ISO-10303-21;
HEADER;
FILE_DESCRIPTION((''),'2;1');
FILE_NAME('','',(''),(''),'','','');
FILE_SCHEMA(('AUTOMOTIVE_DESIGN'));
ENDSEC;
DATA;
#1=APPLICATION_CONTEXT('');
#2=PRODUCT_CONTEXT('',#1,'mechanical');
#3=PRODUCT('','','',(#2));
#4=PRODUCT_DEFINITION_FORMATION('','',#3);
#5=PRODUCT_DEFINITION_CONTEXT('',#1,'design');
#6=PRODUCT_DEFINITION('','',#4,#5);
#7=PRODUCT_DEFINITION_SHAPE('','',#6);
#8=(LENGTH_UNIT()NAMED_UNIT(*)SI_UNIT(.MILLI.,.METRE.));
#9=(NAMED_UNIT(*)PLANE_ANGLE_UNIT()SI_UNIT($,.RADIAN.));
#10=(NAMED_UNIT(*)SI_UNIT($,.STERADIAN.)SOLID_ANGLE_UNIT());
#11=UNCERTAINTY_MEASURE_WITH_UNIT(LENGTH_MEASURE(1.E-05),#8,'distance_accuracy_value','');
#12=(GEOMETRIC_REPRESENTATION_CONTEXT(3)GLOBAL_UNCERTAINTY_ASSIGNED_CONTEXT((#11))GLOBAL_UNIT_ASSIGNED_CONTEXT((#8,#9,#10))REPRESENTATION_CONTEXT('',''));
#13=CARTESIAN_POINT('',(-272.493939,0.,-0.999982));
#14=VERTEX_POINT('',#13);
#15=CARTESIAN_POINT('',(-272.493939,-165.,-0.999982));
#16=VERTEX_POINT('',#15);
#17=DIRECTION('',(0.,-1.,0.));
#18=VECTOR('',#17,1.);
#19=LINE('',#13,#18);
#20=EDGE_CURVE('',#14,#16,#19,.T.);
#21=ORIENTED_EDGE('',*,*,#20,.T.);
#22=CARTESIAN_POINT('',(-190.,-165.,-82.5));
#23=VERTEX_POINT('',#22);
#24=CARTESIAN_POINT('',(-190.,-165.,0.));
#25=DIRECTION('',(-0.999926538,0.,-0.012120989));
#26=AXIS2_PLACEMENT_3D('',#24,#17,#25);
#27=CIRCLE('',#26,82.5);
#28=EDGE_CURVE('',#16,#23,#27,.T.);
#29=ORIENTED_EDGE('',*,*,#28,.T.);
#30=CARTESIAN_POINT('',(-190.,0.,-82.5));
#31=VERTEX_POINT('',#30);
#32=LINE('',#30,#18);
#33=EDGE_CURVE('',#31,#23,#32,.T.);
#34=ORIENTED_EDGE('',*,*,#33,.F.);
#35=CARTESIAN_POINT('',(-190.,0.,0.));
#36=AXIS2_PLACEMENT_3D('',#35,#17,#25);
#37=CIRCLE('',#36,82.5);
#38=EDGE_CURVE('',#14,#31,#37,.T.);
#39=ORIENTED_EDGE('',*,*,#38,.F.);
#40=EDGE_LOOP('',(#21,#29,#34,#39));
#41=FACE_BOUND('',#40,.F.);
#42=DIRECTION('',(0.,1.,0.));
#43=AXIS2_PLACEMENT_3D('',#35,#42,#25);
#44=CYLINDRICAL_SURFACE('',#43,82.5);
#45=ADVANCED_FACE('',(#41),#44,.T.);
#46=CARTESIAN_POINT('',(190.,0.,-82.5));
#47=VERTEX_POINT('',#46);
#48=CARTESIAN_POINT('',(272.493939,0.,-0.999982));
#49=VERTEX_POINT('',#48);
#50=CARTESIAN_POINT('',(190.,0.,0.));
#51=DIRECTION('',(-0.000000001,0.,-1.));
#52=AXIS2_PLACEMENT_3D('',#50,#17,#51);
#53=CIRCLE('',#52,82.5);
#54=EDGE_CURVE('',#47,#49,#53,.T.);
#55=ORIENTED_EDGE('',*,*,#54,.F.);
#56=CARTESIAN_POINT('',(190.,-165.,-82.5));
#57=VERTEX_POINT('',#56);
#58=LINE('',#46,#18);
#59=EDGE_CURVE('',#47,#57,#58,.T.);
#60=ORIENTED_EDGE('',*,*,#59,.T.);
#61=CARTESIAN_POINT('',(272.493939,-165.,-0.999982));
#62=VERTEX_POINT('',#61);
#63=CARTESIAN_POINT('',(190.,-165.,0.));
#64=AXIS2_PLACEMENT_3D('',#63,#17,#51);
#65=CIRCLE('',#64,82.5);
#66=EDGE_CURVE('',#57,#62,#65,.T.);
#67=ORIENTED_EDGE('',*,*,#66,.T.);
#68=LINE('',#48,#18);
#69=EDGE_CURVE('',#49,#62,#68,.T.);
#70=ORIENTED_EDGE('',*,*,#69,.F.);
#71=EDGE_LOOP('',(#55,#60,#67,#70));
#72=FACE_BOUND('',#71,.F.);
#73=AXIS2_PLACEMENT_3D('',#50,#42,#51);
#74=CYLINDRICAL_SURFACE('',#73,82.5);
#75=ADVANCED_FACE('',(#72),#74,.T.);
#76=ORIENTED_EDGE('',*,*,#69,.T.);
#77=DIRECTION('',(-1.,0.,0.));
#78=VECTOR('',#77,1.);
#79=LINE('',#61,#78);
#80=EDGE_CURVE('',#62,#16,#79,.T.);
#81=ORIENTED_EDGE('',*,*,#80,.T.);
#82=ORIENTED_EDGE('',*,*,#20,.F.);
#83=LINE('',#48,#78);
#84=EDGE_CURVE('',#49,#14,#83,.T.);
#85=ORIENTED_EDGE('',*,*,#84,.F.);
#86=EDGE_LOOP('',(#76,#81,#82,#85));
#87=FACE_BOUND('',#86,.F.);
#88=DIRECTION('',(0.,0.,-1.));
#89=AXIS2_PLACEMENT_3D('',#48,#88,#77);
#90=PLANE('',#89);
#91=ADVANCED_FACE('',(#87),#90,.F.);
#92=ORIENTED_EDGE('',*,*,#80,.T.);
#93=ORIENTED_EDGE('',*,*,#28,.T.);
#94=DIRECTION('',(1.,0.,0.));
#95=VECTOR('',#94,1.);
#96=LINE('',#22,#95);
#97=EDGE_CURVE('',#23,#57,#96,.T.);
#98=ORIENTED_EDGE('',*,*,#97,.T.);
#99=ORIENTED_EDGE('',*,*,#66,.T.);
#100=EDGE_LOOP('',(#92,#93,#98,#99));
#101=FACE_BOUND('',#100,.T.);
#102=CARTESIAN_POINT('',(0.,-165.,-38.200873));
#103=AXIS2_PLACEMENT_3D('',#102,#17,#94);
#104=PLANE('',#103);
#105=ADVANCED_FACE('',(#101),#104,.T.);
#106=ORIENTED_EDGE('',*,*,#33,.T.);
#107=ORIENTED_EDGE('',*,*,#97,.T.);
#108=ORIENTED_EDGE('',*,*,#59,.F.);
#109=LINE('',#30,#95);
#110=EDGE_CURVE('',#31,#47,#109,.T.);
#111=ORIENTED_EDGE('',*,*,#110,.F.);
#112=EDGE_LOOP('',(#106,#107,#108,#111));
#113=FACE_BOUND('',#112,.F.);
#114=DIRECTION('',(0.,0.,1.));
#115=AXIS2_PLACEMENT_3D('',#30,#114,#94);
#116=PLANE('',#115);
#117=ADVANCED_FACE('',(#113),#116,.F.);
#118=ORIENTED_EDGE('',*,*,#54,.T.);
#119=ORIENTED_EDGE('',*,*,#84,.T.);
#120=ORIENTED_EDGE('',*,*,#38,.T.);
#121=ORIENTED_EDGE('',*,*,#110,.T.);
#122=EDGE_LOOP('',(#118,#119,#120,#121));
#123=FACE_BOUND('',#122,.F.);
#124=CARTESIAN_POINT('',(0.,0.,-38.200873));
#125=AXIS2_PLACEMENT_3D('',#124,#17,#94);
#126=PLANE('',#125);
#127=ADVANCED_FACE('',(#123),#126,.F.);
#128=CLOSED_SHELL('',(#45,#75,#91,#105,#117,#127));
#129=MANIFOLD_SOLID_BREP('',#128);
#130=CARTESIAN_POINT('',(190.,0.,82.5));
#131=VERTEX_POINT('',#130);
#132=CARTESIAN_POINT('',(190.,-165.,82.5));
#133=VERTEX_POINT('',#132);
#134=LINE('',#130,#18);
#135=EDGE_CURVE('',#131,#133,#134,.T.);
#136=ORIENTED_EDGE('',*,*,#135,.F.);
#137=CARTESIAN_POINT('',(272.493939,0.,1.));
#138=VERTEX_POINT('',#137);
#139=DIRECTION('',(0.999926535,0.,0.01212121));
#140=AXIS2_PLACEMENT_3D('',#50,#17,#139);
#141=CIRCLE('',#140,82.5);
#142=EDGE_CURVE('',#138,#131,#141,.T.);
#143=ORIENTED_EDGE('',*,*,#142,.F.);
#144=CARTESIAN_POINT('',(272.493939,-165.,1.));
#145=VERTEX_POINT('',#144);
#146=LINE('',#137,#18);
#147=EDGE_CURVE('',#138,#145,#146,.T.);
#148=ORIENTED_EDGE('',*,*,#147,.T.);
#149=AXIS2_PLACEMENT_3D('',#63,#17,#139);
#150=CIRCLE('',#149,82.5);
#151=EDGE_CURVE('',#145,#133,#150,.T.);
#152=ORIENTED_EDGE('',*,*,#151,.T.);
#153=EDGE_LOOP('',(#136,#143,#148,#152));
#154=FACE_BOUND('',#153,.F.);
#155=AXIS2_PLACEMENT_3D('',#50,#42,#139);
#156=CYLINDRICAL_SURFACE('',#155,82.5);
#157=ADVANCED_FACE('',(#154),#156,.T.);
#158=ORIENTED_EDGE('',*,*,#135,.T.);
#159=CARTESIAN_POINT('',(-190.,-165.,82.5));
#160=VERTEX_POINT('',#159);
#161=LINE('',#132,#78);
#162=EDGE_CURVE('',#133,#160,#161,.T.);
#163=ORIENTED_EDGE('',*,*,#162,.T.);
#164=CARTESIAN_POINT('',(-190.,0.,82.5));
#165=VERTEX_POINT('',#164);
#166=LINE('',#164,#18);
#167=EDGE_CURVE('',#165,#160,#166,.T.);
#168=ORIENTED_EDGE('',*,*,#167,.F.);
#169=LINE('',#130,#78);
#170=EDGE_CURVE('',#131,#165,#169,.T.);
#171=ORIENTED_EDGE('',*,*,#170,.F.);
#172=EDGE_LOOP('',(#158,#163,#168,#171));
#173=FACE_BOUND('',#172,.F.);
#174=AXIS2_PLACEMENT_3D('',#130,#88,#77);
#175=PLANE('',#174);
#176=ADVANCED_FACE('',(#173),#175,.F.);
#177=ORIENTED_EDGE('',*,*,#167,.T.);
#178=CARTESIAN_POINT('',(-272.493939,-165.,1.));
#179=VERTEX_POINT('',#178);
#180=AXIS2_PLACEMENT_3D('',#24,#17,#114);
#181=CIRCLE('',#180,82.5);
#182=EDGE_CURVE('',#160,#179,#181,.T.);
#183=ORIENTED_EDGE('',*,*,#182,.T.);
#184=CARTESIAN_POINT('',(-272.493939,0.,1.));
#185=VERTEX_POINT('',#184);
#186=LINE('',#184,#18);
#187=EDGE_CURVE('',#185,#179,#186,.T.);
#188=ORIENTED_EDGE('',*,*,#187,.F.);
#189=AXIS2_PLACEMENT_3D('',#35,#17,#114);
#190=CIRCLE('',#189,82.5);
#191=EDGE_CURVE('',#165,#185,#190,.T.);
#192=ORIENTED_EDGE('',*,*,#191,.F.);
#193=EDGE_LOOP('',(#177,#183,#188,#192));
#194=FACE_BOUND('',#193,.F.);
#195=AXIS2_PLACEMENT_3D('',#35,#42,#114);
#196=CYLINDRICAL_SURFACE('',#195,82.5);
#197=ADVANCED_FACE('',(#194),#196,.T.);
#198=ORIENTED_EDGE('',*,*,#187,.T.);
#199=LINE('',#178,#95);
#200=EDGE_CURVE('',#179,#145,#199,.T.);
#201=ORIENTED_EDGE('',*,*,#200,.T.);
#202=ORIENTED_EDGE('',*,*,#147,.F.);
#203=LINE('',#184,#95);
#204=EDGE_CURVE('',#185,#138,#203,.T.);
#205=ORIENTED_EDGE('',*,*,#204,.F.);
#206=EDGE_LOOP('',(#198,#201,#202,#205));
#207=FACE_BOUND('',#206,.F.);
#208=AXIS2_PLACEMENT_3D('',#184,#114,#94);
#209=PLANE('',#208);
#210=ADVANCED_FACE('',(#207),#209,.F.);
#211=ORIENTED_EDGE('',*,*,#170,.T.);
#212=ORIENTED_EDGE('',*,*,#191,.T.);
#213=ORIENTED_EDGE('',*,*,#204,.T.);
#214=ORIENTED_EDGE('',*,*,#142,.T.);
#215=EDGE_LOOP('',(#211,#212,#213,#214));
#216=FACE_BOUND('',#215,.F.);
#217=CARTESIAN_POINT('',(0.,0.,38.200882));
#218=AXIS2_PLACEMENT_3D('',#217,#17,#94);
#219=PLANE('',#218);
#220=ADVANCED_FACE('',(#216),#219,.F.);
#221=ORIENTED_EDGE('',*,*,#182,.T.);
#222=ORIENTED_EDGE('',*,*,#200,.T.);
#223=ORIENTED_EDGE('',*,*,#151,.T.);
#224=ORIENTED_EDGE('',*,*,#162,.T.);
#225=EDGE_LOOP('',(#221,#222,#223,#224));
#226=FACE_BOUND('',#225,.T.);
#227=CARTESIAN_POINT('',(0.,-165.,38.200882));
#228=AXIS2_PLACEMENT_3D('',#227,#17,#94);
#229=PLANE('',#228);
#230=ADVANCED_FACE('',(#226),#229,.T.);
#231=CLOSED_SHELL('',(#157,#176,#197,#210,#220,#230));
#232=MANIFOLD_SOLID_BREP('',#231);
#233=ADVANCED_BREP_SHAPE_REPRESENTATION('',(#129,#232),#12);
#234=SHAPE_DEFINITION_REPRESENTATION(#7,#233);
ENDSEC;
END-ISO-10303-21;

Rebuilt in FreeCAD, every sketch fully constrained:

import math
import FreeCAD as App
import Part
import Sketcher
from FreeCAD import Vector
Q = App.Units.Quantity

doc = App.newDocument("Part")
body = doc.addObject("PartDesign::Body", "Body")
body.AllowCompound = True

# Sketch on XZ plane
sketch1 = body.newObject("Sketcher::SketchObject", "Sketch")
sketch1.AttachmentSupport = (doc.getObject("XZ_Plane"), [""])
sketch1.MapMode = "FlatFace"
sketch1.addGeometry(Part.ArcOfCircle(Part.Circle(Vector(190, 0, 0), Vector(0, 0, 1), 82), math.radians(1), math.radians(90)), False)
sketch1.addGeometry(Part.LineSegment(Vector(190, 82, 0), Vector(-190, 82, 0)), False)
sketch1.addGeometry(Part.ArcOfCircle(Part.Circle(Vector(-190, 0, 0), Vector(0, 0, 1), 82), math.radians(90), math.radians(179)), False)
sketch1.addGeometry(Part.LineSegment(Vector(-272, 1, 0), Vector(272, 1, 0)), False)
sketch1.addGeometry(Part.LineSegment(Vector(272, -1, 0), Vector(-272, -1, 0)), False)
sketch1.addGeometry(Part.ArcOfCircle(Part.Circle(Vector(-190, 0, 0), Vector(0, 0, 1), 82), math.radians(-179), math.radians(-90)), False)
sketch1.addGeometry(Part.LineSegment(Vector(-190, -82, 0), Vector(190, -82, 0)), False)
sketch1.addGeometry(Part.ArcOfCircle(Part.Circle(Vector(190, 0, 0), Vector(0, 0, 1), 82), math.radians(-90), math.radians(-1)), False)
sketch1.addConstraint(Sketcher.Constraint("Tangent", 0, 2, 1, 1))
sketch1.addConstraint(Sketcher.Constraint("Tangent", 1, 2, 2, 1))
sketch1.addConstraint(Sketcher.Constraint("Coincident", 2, 2, 3, 1))
sketch1.addConstraint(Sketcher.Constraint("Coincident", 3, 2, 0, 1))
sketch1.addConstraint(Sketcher.Constraint("Coincident", 4, 2, 5, 1))
sketch1.addConstraint(Sketcher.Constraint("Tangent", 5, 2, 6, 1))
sketch1.addConstraint(Sketcher.Constraint("Tangent", 6, 2, 7, 1))
sketch1.addConstraint(Sketcher.Constraint("Coincident", 7, 2, 4, 1))
sketch1.addConstraint(Sketcher.Constraint("Horizontal", 1))
sketch1.addConstraint(Sketcher.Constraint("Horizontal", 3))
sketch1.addConstraint(Sketcher.Constraint("Horizontal", 4))
sketch1.addConstraint(Sketcher.Constraint("Horizontal", 6))
sketch1.addConstraint(Sketcher.Constraint("Coincident", 5, 3, 2, 3))
sketch1.addConstraint(Sketcher.Constraint("Coincident", 7, 3, 0, 3))
sketch1.addConstraint(Sketcher.Constraint("Equal", 0, 2))
sketch1.addConstraint(Sketcher.Constraint("Equal", 2, 5))
sketch1.addConstraint(Sketcher.Constraint("Symmetric", 0, 3, 2, 3, -1, 1))
sketch1.addConstraint(Sketcher.Constraint("Vertical", 2, 2, 4, 2))
sketch1.addConstraint(Sketcher.Constraint("Radius", 0, Q("82.5 mm")))
sketch1.addConstraint(Sketcher.Constraint("DistanceX", 1, 2, 1, 1, Q("380 mm")))
sketch1.addConstraint(Sketcher.Constraint("DistanceY", -1, 1, 2, 2, Q("1 mm")))
pad1 = body.newObject("PartDesign::Pad", "Pad")
pad1.Profile = sketch1
pad1.Length = 165

doc.recompute()
